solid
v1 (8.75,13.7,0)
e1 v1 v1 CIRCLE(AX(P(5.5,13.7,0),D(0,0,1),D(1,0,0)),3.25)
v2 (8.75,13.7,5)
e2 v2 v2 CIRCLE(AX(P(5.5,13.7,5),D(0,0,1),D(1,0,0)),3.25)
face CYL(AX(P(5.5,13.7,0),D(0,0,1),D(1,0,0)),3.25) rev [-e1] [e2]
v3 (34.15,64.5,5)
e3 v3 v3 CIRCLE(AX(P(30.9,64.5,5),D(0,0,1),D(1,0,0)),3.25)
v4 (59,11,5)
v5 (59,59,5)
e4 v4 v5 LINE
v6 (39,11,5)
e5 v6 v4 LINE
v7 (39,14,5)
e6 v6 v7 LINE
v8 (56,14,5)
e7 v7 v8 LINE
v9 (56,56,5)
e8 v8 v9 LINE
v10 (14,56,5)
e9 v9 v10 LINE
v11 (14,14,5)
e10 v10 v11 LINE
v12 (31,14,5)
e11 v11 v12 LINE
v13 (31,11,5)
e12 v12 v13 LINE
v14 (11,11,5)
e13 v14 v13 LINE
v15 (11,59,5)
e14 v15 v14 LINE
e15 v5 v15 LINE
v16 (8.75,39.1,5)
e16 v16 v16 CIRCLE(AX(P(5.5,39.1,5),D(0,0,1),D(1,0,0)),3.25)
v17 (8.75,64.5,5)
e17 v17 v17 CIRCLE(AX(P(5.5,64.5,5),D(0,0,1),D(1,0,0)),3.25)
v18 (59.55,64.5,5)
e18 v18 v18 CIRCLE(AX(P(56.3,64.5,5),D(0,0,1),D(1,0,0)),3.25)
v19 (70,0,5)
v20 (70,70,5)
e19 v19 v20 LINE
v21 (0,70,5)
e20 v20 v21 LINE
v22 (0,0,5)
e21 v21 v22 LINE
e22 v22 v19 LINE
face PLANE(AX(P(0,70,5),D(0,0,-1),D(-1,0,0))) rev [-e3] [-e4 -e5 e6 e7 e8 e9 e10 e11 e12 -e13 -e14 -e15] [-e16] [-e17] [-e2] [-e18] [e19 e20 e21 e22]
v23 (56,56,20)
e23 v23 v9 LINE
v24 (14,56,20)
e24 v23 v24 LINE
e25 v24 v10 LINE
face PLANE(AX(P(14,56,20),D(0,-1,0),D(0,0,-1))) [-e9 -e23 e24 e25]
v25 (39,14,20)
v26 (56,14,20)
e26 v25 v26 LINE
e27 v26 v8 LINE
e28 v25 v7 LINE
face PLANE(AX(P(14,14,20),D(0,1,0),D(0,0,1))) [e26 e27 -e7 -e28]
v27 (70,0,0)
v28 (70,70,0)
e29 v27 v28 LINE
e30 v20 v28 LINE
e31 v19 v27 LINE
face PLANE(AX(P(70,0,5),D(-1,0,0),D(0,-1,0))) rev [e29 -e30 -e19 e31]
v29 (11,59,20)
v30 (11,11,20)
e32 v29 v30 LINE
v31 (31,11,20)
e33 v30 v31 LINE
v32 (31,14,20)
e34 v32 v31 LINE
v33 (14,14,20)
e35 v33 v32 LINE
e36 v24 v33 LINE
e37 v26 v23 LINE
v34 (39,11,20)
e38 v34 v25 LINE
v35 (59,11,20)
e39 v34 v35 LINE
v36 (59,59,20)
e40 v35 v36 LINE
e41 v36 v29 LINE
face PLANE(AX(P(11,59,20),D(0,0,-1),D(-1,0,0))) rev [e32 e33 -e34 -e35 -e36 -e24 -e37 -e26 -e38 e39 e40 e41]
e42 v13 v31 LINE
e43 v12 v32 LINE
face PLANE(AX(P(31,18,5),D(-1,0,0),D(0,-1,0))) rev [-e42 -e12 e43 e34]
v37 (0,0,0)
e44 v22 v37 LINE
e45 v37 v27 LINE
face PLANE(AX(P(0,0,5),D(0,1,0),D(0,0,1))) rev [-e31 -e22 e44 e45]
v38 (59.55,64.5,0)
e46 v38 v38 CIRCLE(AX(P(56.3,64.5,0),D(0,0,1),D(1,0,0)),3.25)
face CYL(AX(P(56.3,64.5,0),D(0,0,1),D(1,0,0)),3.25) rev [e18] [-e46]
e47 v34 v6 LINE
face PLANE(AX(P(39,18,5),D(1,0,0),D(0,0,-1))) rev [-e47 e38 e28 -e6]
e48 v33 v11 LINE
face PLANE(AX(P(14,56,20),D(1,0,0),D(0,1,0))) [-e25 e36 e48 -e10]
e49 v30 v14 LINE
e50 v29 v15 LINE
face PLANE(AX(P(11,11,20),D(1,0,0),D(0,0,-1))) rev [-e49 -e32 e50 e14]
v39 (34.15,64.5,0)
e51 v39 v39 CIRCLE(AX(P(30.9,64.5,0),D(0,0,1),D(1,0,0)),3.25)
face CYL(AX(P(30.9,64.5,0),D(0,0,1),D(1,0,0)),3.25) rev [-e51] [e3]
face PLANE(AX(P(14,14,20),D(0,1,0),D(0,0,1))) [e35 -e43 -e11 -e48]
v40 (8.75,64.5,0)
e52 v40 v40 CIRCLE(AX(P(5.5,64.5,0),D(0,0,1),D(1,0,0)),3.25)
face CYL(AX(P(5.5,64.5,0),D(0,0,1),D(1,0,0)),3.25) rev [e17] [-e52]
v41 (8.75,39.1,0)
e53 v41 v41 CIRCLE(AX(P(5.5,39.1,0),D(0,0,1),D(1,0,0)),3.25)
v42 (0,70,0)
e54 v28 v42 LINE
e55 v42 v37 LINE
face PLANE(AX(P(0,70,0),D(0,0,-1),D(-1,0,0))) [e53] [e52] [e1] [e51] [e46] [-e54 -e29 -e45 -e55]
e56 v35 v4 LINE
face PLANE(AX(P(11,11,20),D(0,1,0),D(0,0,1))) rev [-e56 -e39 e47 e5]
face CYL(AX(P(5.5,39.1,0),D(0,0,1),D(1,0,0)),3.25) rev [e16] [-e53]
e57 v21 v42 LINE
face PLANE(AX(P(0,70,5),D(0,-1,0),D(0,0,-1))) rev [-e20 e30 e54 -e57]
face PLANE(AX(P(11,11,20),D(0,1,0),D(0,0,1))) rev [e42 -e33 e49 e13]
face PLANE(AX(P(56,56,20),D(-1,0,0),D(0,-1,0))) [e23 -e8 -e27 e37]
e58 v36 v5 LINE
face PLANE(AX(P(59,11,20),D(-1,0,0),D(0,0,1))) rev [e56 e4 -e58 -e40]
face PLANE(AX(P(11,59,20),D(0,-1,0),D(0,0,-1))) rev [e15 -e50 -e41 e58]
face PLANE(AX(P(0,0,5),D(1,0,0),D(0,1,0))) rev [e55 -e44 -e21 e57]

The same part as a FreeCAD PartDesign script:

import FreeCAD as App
import Part
import Sketcher
from FreeCAD import Vector
Q = App.Units.Quantity


def add_polygon(sketch, points):
    """Adds a closed chain of lines whose ends are joined by coincident constraints."""
    first, n = sketch.GeometryCount, len(points)
    for a, b in zip(points, points[1:] + points[:1]):
        sketch.addGeometry(Part.LineSegment(App.Vector(*a, 0), App.Vector(*b, 0)), False)
    for i in range(n):
        sketch.addConstraint(Sketcher.Constraint("Coincident", first + i, 2, first + (i + 1) % n, 1))

doc = App.newDocument("Part")
body = doc.addObject("PartDesign::Body", "Body")

# Sketch on XY plane
sketch1 = body.newObject("Sketcher::SketchObject", "Sketch")
sketch1.AttachmentSupport = (doc.getObject("XY_Plane"), [""])
sketch1.MapMode = "FlatFace"
add_polygon(sketch1, [(0, 70), (0, 0), (70, 0), (70, 70)])  # lines 0-3
sketch1.addConstraint(Sketcher.Constraint("Vertical", 0))
sketch1.addConstraint(Sketcher.Constraint("Horizontal", 1))
sketch1.addConstraint(Sketcher.Constraint("Vertical", 2))
sketch1.addConstraint(Sketcher.Constraint("Horizontal", 3))
sketch1.addConstraint(Sketcher.Constraint("Coincident", 0, 2, -1, 1))
sketch1.addConstraint(Sketcher.Constraint("Equal", 3, 0))
sketch1.addConstraint(Sketcher.Constraint("DistanceX", 1, 1, 1, 2, Q("70 mm")))
pad1 = body.newObject("PartDesign::Pad", "Pad")
pad1.Profile = sketch1
pad1.Length = 5

# Sketch on XY plane
sketch2 = body.newObject("Sketcher::SketchObject", "Sketch001")
sketch2.AttachmentSupport = (doc.getObject("XY_Plane"), [""])
sketch2.MapMode = "FlatFace"
sketch2.AttachmentOffset = App.Placement(Vector(0, 0, 5), App.Rotation())
add_polygon(sketch2, [(11, 59), (11, 11), (59, 11), (59, 59)])  # lines 0-3
add_polygon(sketch2, [(56, 14), (14, 14), (14, 56), (56, 56)])  # lines 4-7
sketch2.addConstraint(Sketcher.Constraint("Vertical", 0))
sketch2.addConstraint(Sketcher.Constraint("Horizontal", 1))
sketch2.addConstraint(Sketcher.Constraint("Vertical", 2))
sketch2.addConstraint(Sketcher.Constraint("Horizontal", 3))
sketch2.addConstraint(Sketcher.Constraint("Horizontal", 4))
sketch2.addConstraint(Sketcher.Constraint("Vertical", 5))
sketch2.addConstraint(Sketcher.Constraint("Horizontal", 6))
sketch2.addConstraint(Sketcher.Constraint("Vertical", 7))
sketch2.addConstraint(Sketcher.Constraint("Equal", 3, 0))
sketch2.addConstraint(Sketcher.Constraint("Equal", 6, 5))
sketch2.addConstraint(Sketcher.Constraint("DistanceX", 1, 1, 1, 2, Q("48 mm")))
sketch2.addConstraint(Sketcher.Constraint("DistanceX", 4, 2, 4, 1, Q("42 mm")))
sketch2.addConstraint(Sketcher.Constraint("DistanceX", -1, 1, 0, 2, Q("11 mm")))
sketch2.addConstraint(Sketcher.Constraint("DistanceY", -1, 1, 0, 2, Q("11 mm")))
sketch2.addConstraint(Sketcher.Constraint("DistanceX", -1, 1, 4, 2, Q("14 mm")))
sketch2.addConstraint(Sketcher.Constraint("DistanceY", -1, 1, 4, 2, Q("14 mm")))
pad2 = body.newObject("PartDesign::Pad", "Pad001")
pad2.Profile = sketch2
pad2.Length = 15

# Sketch on XY plane
sketch3 = body.newObject("Sketcher::SketchObject", "Sketch002")
sketch3.AttachmentSupport = (doc.getObject("XY_Plane"), [""])
sketch3.MapMode = "FlatFace"
sketch3.AttachmentOffset = App.Placement(Vector(0, 0, 5), App.Rotation())
sketch3.addGeometry(Part.Circle(Vector(5.5, 64.5, 0), Vector(0, 0, 1), 3.2), False)
sketch3.addGeometry(Part.Circle(Vector(30.9, 64.5, 0), Vector(0, 0, 1), 3.2), False)
sketch3.addGeometry(Part.Circle(Vector(56.3, 64.5, 0), Vector(0, 0, 1), 3.2), False)
sketch3.addGeometry(Part.Circle(Vector(5.5, 39.1, 0), Vector(0, 0, 1), 3.2), False)
sketch3.addGeometry(Part.Circle(Vector(5.5, 13.7, 0), Vector(0, 0, 1), 3.2), False)
sketch3.addConstraint(Sketcher.Constraint("Equal", 0, 1))
sketch3.addConstraint(Sketcher.Constraint("Equal", 1, 2))
sketch3.addConstraint(Sketcher.Constraint("Equal", 2, 3))
sketch3.addConstraint(Sketcher.Constraint("Equal", 3, 4))
sketch3.addConstraint(Sketcher.Constraint("Horizontal", 0, 3, 1, 3))
sketch3.addConstraint(Sketcher.Constraint("Horizontal", 1, 3, 2, 3))
sketch3.addConstraint(Sketcher.Constraint("Vertical", 0, 3, 3, 3))
sketch3.addConstraint(Sketcher.Constraint("Vertical", 3, 3, 4, 3))
sketch3.addConstraint(Sketcher.Constraint("Diameter", 0, Q("6.5 mm")))
sketch3.addConstraint(Sketcher.Constraint("DistanceX", -1, 1, 0, 3, Q("5.5 mm")))
sketch3.addConstraint(Sketcher.Constraint("DistanceY", -1, 1, 0, 3, Q("64.5 mm")))
sketch3.addConstraint(Sketcher.Constraint("DistanceX", -1, 1, 1, 3, Q("30.9 mm")))
sketch3.addConstraint(Sketcher.Constraint("DistanceX", -1, 1, 2, 3, Q("56.3 mm")))
sketch3.addConstraint(Sketcher.Constraint("DistanceY", -1, 1, 3, 3, Q("39.1 mm")))
sketch3.addConstraint(Sketcher.Constraint("DistanceY", -1, 1, 4, 3, Q("13.7 mm")))
pocket1 = body.newObject("PartDesign::Pocket", "Pocket")
pocket1.Profile = sketch3
pocket1.Type = "ThroughAll"

# Sketch on XY plane
sketch4 = body.newObject("Sketcher::SketchObject", "Sketch003")
sketch4.AttachmentSupport = (doc.getObject("XY_Plane"), [""])
sketch4.MapMode = "FlatFace"
sketch4.AttachmentOffset = App.Placement(Vector(0, 0, 20), App.Rotation())
add_polygon(sketch4, [(31, 18), (31, 10), (39, 10), (39, 18)])  # lines 0-3
sketch4.addConstraint(Sketcher.Constraint("Vertical", 0))
sketch4.addConstraint(Sketcher.Constraint("Horizontal", 1))
sketch4.addConstraint(Sketcher.Constraint("Vertical", 2))
sketch4.addConstraint(Sketcher.Constraint("Horizontal", 3))
sketch4.addConstraint(Sketcher.Constraint("Equal", 3, 0))
sketch4.addConstraint(Sketcher.Constraint("DistanceX", 1, 1, 1, 2, Q("8 mm")))
sketch4.addConstraint(Sketcher.Constraint("DistanceX", -1, 1, 0, 2, Q("31 mm")))
sketch4.addConstraint(Sketcher.Constraint("DistanceY", -1, 1, 0, 2, Q("10 mm")))
pocket2 = body.newObject("PartDesign::Pocket", "Pocket001")
pocket2.Profile = sketch4
pocket2.Length = 15

doc.recompute()
